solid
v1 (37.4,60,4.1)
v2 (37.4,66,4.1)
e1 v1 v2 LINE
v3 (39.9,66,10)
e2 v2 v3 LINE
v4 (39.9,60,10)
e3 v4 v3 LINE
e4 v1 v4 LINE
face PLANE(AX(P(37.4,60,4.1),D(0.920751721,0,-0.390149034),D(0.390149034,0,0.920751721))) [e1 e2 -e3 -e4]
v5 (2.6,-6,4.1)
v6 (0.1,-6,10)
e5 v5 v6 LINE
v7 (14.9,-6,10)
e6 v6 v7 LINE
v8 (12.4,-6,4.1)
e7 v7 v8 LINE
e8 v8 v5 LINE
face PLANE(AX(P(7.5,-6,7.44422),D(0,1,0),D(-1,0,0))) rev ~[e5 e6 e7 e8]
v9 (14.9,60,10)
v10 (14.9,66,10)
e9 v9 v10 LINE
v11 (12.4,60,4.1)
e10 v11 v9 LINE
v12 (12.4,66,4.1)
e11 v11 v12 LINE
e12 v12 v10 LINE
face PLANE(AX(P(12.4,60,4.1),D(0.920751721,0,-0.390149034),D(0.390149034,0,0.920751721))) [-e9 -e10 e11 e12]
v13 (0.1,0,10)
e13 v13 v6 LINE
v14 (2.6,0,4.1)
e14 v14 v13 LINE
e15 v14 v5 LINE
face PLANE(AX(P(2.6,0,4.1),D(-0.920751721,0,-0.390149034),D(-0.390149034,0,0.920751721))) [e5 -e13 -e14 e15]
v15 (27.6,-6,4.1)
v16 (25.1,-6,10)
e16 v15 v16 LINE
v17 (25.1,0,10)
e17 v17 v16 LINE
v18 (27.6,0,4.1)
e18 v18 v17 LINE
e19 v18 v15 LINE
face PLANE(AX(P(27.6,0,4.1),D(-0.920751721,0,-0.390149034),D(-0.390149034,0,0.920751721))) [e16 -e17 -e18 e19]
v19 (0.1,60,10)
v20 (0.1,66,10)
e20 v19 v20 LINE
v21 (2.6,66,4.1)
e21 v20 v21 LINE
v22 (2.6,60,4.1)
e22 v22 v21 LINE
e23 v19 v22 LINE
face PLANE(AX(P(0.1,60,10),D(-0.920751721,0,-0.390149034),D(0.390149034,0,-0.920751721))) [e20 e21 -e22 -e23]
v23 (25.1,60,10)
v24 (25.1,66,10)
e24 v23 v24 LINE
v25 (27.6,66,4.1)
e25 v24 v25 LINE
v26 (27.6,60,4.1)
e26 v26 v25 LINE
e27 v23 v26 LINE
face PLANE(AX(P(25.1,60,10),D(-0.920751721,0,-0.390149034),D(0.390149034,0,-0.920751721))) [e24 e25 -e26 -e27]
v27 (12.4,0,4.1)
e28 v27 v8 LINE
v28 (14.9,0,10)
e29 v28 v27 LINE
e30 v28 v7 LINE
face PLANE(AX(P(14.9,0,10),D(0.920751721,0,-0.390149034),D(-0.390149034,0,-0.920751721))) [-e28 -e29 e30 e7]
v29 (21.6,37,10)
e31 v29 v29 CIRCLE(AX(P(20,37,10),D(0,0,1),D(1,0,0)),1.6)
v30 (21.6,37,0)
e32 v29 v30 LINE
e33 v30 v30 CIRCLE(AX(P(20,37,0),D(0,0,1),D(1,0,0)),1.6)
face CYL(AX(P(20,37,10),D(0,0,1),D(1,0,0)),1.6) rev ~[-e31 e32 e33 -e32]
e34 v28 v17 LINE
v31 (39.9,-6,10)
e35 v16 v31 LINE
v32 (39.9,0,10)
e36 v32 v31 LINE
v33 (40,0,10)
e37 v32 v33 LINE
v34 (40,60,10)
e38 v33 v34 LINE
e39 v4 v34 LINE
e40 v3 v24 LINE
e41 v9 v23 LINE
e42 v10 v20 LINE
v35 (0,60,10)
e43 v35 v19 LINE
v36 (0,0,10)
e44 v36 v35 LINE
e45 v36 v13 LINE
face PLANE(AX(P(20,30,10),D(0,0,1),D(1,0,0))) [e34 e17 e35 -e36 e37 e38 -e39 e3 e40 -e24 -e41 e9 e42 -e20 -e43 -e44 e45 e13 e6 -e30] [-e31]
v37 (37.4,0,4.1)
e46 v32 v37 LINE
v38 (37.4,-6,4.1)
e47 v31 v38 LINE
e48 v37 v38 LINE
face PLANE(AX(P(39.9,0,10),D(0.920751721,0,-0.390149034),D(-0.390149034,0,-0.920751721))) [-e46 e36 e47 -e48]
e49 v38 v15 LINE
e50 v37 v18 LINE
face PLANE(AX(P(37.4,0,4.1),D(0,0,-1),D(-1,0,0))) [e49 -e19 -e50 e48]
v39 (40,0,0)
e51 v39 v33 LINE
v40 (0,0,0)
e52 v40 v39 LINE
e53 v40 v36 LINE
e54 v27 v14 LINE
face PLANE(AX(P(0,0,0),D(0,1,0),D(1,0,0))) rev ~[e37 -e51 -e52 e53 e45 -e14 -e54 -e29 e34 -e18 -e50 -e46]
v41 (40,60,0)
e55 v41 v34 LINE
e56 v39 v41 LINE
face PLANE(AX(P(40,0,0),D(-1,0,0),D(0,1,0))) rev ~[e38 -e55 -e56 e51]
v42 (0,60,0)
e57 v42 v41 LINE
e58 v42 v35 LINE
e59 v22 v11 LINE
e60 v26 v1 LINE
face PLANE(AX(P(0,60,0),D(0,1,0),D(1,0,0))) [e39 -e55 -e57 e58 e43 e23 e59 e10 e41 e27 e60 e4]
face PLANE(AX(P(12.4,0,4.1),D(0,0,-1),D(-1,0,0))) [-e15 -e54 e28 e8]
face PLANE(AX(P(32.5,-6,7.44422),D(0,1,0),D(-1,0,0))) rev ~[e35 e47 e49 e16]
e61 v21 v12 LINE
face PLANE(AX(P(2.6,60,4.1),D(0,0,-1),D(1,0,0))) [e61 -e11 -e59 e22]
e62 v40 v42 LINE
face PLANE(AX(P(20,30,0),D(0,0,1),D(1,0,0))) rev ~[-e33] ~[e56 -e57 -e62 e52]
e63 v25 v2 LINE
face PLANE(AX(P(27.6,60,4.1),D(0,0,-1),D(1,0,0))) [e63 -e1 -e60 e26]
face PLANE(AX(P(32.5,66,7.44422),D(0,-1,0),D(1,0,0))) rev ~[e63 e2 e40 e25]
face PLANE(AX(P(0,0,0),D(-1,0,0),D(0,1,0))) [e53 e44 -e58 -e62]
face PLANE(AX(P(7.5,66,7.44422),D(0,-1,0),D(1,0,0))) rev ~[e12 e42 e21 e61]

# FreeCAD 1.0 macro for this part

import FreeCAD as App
import Part
import Sketcher


def add_polygon(sketch, points):
    """Adds a closed chain of lines whose ends are joined by coincident constraints."""
    first, n = sketch.GeometryCount, len(points)
    for a, b in zip(points, points[1:] + points[:1]):
        sketch.addGeometry(Part.LineSegment(App.Vector(*a, 0), App.Vector(*b, 0)), False)
    for i in range(n):
        sketch.addConstraint(Sketcher.Constraint("Coincident", first + i, 2, first + (i + 1) % n, 1))

doc = App.newDocument("Part")
params = doc.addObject("Spreadsheet::Sheet", "Params")
for row, (alias, value) in enumerate([
    ("sketch1_width", "40 mm"),
    ("sketch1_height", "60 mm"),
    ("pad1_length", "10 mm"),
    ("sketch2_width", "14.8 mm"),
    ("sketch2_width2", "9.8 mm"),
    ("pad2_length", "6 mm"),
    ("sketch3_width", "14.8 mm"),
    ("sketch3_width2", "9.8 mm"),
    ("pad3_length", "6 mm"),
    ("sketch4_diameter", "3.2 mm"),
    ("pocket1_length", "10 mm"),
], start=1):
    params.set(f"A{row}", alias)
    params.set(f"B{row}", "=" + value)
    params.setAlias(f"B{row}", alias)

body = doc.addObject("PartDesign::Body", "Body")

sketch1 = body.newObject("Sketcher::SketchObject", "Sketch")
sketch1.AttachmentSupport = (doc.getObject("XY_Plane"), [""])
sketch1.MapMode = "FlatFace"
add_polygon(sketch1, [(0, 60), (0, 0), (40, 0), (40, 60)])
sketch1.addConstraint([
    Sketcher.Constraint("Vertical", 0),
    Sketcher.Constraint("Horizontal", 1),
    Sketcher.Constraint("Vertical", 2),
    Sketcher.Constraint("Horizontal", 3),
    Sketcher.Constraint("Coincident", 0, 2, -1, 1),
    Sketcher.Constraint("DistanceX", 1, 1, 1, 2, 40.0),
    Sketcher.Constraint("DistanceY", 0, 2, 0, 1, 60.0),
])
sketch1.setExpression("Constraints[9]", "Params.sketch1_width")
sketch1.setExpression("Constraints[10]", "Params.sketch1_height")
pad1 = body.newObject("PartDesign::Pad", "Pad")
pad1.Profile = sketch1
pad1.setExpression("Length", "Params.pad1_length")

sketch2 = body.newObject("Sketcher::SketchObject", "Sketch001")
sketch2.AttachmentSupport = (doc.getObject("XZ_Plane"), [""])
sketch2.MapMode = "FlatFace"
add_polygon(sketch2, [(15, 10), (0, 10), (3, 4), (12, 4)])
add_polygon(sketch2, [(40, 10), (25, 10), (28, 4), (37, 4)])
sketch2.addConstraint([
    Sketcher.Constraint("Horizontal", 0),
    Sketcher.Constraint("Horizontal", 2),
    Sketcher.Constraint("Horizontal", 4),
    Sketcher.Constraint("Horizontal", 6),
    Sketcher.Constraint("Parallel", 1, 5),
    Sketcher.Constraint("Parallel", 3, 7),
    Sketcher.Constraint("Horizontal", 3, 2, 4, 2),
    Sketcher.Constraint("Horizontal", 2, 2, 5, 2),
    Sketcher.Constraint("Equal", 0, 4),
    Sketcher.Constraint("Equal", 1, 3),
    Sketcher.Constraint("DistanceX", 0, 2, 0, 1, 14.8),
    Sketcher.Constraint("DistanceX", 2, 1, 2, 2, 9.8),
    Sketcher.Constraint("DistanceY", -1, 1, 0, 2, 10.0),
    Sketcher.Constraint("DistanceX", 0, 2, 4, 2, 25.0),
    Sketcher.Constraint("DistanceX", -1, 1, 0, 2, 0.1),
    Sketcher.Constraint("DistanceY", -1, 1, 1, 2, 4.1),
])
sketch2.setExpression("Constraints[18]", "Params.sketch2_width")
sketch2.setExpression("Constraints[19]", "Params.sketch2_width2")
pad2 = body.newObject("PartDesign::Pad", "Pad001")
pad2.Profile = sketch2
pad2.setExpression("Length", "Params.pad2_length")

sketch3 = body.newObject("Sketcher::SketchObject", "Sketch002")
sketch3.AttachmentSupport = (doc.getObject("XZ_Plane"), [""])
sketch3.MapMode = "FlatFace"
sketch3.AttachmentOffset = App.Placement(App.Vector(0, 0, -60), App.Rotation())
add_polygon(sketch3, [(25, 10), (40, 10), (37, 4), (28, 4)])
add_polygon(sketch3, [(0, 10), (15, 10), (12, 4), (3, 4)])
sketch3.addConstraint([
    Sketcher.Constraint("Horizontal", 0),
    Sketcher.Constraint("Horizontal", 2),
    Sketcher.Constraint("Horizontal", 4),
    Sketcher.Constraint("Horizontal", 6),
    Sketcher.Constraint("Parallel", 1, 5),
    Sketcher.Constraint("Parallel", 3, 7),
    Sketcher.Constraint("Horizontal", 3, 2, 4, 2),
    Sketcher.Constraint("Horizontal", 2, 2, 5, 2),
    Sketcher.Constraint("Equal", 0, 4),
    Sketcher.Constraint("Equal", 1, 3),
    Sketcher.Constraint("DistanceX", 0, 1, 0, 2, 14.8),
    Sketcher.Constraint("DistanceX", 2, 2, 2, 1, 9.8),
    Sketcher.Constraint("DistanceY", -1, 1, 0, 2, 10.0),
    Sketcher.Constraint("DistanceX", 4, 2, 0, 2, 25.0),
    Sketcher.Constraint("DistanceX", -1, 1, 0, 2, 39.9),
    Sketcher.Constraint("DistanceY", -1, 1, 1, 2, 4.1),
])
sketch3.setExpression("Constraints[18]", "Params.sketch3_width")
sketch3.setExpression("Constraints[19]", "Params.sketch3_width2")
pad3 = body.newObject("PartDesign::Pad", "Pad002")
pad3.Profile = sketch3
pad3.setExpression("Length", "Params.pad3_length")
pad3.Reversed = True

sketch4 = body.newObject("Sketcher::SketchObject", "Sketch003")
sketch4.AttachmentSupport = (doc.getObject("XY_Plane"), [""])
sketch4.MapMode = "FlatFace"
sketch4.AttachmentOffset = App.Placement(App.Vector(0, 0, 10), App.Rotation())
sketch4.addGeometry(Part.Circle(App.Vector(20, 37, 0), App.Vector(0, 0, 1), 1.6), False)
sketch4.addConstraint([
    Sketcher.Constraint("Diameter", 0, 3.2),
    Sketcher.Constraint("DistanceX", -1, 1, 0, 3, 20.0),
    Sketcher.Constraint("DistanceY", -1, 1, 0, 3, 37.0),
])
sketch4.setExpression("Constraints[0]", "Params.sketch4_diameter")
pocket1 = body.newObject("PartDesign::Pocket", "Pocket")
pocket1.Profile = sketch4
pocket1.setExpression("Length", "Params.pocket1_length")

doc.recompute()
